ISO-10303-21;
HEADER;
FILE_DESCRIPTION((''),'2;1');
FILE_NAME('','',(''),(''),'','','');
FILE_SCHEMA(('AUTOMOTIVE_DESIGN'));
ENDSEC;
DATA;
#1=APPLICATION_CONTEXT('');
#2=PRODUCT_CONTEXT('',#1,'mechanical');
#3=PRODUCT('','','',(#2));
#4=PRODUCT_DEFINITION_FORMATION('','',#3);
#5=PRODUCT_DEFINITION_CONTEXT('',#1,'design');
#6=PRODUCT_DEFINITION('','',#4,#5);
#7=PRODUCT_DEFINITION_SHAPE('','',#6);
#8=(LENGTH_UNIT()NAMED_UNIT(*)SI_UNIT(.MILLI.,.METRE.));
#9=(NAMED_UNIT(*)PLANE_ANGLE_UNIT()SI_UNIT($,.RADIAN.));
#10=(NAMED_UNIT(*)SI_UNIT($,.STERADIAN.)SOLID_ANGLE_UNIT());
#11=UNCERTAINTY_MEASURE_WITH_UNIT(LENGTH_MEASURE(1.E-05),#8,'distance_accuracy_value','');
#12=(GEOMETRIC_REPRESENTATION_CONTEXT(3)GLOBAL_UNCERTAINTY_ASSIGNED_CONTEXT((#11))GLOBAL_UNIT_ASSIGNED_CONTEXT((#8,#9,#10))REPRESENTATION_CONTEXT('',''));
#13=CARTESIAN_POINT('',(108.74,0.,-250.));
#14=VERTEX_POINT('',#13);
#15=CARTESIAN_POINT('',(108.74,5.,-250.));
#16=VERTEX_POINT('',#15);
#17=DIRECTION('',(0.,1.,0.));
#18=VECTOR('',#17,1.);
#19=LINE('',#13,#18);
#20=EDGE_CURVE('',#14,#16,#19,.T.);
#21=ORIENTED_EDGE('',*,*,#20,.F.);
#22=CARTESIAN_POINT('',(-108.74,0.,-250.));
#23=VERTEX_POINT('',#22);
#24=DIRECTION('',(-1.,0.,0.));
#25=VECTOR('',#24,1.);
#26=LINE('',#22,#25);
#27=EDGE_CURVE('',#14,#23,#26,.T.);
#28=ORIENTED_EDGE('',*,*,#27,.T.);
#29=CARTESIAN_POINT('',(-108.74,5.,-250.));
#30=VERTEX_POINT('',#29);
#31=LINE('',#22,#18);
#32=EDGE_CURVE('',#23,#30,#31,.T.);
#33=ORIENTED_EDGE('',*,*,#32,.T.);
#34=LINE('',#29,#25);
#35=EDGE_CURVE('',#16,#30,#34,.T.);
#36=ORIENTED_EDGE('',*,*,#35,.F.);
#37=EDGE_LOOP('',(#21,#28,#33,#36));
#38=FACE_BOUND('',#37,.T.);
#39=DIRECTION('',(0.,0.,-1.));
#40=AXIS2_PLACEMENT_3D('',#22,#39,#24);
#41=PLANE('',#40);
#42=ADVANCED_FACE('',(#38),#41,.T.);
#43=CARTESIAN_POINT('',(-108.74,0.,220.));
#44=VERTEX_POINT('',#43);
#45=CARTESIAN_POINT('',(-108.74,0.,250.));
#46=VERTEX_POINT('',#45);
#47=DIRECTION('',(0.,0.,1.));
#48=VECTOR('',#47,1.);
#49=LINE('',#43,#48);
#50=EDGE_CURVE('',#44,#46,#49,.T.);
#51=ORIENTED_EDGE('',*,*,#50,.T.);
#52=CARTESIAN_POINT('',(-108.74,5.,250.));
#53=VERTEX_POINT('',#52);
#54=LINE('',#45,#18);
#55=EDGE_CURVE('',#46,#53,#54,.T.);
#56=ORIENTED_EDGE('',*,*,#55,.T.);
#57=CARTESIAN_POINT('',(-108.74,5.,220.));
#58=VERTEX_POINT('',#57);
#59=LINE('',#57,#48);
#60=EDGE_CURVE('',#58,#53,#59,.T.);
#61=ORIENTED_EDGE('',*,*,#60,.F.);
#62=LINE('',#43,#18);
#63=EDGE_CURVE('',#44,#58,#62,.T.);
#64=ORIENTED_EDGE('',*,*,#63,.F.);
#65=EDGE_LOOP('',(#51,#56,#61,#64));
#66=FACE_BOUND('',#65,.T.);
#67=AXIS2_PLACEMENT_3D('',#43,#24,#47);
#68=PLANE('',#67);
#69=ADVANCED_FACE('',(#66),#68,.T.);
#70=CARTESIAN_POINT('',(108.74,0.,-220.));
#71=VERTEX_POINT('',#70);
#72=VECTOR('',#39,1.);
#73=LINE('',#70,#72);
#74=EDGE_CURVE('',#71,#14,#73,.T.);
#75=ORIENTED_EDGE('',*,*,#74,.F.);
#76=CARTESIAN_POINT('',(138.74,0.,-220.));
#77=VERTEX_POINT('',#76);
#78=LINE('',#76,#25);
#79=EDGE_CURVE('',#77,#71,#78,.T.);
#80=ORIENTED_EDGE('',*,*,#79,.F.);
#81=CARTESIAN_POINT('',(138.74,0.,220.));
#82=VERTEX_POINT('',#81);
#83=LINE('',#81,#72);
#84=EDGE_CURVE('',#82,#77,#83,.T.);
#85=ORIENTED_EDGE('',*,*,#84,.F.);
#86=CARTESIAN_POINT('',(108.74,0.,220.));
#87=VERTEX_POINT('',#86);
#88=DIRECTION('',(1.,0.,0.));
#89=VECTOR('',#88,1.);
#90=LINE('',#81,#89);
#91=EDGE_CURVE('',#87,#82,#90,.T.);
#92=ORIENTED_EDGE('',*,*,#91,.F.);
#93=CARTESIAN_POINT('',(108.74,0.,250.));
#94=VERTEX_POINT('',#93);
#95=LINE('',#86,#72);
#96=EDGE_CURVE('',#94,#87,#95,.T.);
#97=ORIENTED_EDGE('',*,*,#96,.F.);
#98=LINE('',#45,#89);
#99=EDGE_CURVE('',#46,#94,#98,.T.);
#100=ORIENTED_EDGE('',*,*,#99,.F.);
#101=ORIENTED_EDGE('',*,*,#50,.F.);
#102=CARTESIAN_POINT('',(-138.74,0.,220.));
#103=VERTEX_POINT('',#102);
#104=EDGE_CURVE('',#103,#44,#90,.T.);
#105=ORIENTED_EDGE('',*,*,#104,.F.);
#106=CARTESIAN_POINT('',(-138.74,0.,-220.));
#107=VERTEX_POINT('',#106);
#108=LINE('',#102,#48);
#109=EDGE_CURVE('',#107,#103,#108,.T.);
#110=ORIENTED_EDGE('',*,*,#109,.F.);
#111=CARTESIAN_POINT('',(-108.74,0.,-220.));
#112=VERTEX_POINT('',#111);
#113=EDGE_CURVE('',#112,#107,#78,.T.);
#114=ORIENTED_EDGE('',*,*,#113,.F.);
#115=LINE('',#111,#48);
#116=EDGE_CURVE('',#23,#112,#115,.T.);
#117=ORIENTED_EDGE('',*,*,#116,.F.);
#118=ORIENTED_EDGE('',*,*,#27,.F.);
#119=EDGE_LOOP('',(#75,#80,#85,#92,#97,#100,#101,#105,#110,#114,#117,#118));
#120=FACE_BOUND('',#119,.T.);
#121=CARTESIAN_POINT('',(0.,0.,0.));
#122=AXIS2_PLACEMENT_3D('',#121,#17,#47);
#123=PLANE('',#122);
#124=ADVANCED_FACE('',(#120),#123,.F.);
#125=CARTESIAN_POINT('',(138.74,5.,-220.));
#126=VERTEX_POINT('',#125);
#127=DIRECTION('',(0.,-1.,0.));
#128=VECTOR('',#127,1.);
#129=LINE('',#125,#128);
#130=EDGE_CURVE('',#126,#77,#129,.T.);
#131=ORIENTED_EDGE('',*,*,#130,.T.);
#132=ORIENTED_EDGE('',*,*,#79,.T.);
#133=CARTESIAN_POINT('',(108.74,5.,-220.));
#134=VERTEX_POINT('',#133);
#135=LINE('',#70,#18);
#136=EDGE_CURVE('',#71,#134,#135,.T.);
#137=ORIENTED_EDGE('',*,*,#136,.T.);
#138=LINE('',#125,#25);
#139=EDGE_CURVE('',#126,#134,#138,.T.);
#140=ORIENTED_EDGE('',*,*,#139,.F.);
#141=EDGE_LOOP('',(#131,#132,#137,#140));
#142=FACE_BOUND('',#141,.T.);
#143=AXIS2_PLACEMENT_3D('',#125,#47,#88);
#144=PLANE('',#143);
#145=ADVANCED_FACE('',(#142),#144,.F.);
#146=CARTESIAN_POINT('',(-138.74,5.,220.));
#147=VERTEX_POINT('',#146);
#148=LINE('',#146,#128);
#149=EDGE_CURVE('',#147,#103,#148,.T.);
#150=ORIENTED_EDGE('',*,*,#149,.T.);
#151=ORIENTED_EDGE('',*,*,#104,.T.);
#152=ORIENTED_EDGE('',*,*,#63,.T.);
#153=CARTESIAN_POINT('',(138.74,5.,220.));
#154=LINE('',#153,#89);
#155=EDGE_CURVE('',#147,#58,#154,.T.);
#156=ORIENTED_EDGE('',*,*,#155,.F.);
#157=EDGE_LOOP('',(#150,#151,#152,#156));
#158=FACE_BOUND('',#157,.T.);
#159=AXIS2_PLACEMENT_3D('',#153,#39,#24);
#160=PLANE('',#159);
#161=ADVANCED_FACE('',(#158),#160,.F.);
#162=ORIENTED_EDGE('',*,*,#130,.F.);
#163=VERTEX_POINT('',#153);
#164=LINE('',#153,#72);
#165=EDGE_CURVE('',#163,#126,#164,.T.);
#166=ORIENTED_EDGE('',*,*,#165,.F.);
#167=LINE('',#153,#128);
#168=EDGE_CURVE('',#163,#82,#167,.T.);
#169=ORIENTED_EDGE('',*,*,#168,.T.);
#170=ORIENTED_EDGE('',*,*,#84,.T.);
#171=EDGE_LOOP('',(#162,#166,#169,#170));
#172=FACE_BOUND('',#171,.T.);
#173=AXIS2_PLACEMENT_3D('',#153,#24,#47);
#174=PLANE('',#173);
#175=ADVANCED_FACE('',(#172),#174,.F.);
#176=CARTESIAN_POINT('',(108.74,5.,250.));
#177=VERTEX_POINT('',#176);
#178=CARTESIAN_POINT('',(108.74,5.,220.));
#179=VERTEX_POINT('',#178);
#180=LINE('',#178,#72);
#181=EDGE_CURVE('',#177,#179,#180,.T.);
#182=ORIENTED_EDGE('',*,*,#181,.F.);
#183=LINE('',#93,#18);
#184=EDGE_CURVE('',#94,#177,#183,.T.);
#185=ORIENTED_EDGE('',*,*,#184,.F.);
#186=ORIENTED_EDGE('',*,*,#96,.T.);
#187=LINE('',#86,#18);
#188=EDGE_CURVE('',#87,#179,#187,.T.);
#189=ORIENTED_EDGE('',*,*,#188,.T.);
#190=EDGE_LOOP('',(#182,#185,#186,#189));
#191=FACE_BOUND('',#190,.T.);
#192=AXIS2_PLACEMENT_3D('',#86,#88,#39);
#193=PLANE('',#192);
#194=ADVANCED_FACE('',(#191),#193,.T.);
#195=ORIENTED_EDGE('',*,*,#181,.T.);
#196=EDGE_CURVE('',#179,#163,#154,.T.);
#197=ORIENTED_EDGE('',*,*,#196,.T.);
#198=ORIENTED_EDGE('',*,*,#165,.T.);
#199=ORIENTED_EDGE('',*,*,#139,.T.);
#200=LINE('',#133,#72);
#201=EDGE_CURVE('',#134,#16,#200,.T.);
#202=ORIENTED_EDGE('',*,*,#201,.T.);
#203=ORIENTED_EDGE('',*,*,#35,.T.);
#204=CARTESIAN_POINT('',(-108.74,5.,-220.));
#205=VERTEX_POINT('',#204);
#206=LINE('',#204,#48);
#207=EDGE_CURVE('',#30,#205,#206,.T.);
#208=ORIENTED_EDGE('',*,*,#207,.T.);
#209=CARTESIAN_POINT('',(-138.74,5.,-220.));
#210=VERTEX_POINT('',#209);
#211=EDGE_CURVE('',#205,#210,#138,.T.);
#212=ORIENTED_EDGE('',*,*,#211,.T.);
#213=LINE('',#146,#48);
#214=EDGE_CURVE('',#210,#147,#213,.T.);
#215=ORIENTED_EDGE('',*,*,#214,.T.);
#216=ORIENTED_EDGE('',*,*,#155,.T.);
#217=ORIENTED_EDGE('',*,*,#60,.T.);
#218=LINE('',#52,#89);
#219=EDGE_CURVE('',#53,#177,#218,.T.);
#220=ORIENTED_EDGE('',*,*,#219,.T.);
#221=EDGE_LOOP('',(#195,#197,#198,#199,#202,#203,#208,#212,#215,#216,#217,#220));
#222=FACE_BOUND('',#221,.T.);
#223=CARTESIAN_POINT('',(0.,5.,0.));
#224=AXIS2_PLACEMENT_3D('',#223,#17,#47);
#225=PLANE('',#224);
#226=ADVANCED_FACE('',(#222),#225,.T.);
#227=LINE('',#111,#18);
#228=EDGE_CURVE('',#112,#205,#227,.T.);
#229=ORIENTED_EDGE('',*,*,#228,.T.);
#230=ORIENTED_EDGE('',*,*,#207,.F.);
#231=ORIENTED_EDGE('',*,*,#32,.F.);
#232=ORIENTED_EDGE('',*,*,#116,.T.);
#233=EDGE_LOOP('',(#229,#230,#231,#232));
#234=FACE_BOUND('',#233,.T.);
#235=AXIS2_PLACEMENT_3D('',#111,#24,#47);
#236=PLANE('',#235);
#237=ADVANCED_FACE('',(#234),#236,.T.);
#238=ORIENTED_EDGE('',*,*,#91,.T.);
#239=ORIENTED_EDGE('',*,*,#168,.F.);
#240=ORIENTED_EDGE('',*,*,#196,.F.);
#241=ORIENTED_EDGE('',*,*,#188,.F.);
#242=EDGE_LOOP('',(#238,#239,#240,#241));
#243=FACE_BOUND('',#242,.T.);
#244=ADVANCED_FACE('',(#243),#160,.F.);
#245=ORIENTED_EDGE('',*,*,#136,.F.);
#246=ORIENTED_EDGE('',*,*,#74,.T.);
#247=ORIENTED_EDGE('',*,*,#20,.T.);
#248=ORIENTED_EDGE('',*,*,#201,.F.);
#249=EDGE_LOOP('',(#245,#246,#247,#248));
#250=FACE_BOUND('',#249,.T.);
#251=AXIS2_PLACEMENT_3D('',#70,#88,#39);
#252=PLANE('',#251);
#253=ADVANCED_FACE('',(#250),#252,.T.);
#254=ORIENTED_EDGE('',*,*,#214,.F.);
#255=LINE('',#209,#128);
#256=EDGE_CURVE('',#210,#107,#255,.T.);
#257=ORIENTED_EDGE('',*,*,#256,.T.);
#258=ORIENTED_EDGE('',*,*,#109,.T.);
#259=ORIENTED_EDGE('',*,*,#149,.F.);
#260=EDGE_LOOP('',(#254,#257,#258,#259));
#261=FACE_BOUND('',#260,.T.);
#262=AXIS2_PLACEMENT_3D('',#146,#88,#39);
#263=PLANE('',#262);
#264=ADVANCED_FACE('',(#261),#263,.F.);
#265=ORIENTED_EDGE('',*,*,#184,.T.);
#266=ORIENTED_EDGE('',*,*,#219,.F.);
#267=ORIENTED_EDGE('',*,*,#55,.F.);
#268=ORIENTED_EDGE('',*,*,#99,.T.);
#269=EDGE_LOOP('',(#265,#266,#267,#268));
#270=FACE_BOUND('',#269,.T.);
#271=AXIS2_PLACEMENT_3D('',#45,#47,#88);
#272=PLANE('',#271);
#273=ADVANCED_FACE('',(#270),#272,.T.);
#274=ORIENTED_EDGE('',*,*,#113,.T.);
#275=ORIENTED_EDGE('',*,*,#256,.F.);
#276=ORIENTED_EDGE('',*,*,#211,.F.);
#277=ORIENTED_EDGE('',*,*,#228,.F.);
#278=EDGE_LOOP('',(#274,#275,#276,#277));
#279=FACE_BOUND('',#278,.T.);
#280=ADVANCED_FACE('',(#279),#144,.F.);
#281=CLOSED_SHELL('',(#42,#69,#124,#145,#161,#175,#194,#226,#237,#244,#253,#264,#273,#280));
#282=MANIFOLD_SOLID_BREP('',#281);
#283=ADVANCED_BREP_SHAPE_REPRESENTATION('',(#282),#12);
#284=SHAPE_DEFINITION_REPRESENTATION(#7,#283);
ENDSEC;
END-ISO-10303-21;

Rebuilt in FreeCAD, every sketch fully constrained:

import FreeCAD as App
import Part
import Sketcher

V = App.Vector


def add_polygon(sketch, points):
    """Adds a closed chain of lines whose ends are joined by coincident constraints."""
    first, n = sketch.GeometryCount, len(points)
    for a, b in zip(points, points[1:] + points[:1]):
        sketch.addGeometry(Part.LineSegment(App.Vector(*a, 0), App.Vector(*b, 0)), False)
    for i in range(n):
        sketch.addConstraint(Sketcher.Constraint("Coincident", first + i, 2, first + (i + 1) % n, 1))

doc = App.newDocument("Part")
body = doc.addObject("PartDesign::Body", "Body")

sketch1 = doc.addObject("Sketcher::SketchObject", "Sketch")
body.addObject(sketch1)
sketch1.AttachmentSupport = (doc.XZ_Plane, [""])
sketch1.MapMode = "FlatFace"
add_polygon(sketch1, [(-139, -220), (-139, 220), (139, 220), (139, -220)])
sketch1.addConstraint(Sketcher.Constraint("Vertical", 0))
sketch1.addConstraint(Sketcher.Constraint("Horizontal", 1))
sketch1.addConstraint(Sketcher.Constraint("Vertical", 2))
sketch1.addConstraint(Sketcher.Constraint("Horizontal", 3))
sketch1.addConstraint(Sketcher.Constraint("Symmetric", 0, 2, 2, 2, -1, 1))
sketch1.addConstraint(Sketcher.Constraint("DistanceY", 0, 1, 0, 2, 440.0))
sketch1.addConstraint(Sketcher.Constraint("DistanceX", 1, 1, 1, 2, 277.48))
pad1 = doc.addObject("PartDesign::Pad", "Pad")
body.addObject(pad1)
pad1.Profile = sketch1
pad1.Length = 5
pad1.Reversed = True

sketch2 = doc.addObject("Sketcher::SketchObject", "Sketch001")
body.addObject(sketch2)
sketch2.AttachmentSupport = (doc.XZ_Plane, [""])
sketch2.MapMode = "FlatFace"
sketch2.AttachmentOffset = App.Placement(V(0, 0, -5), App.Rotation())
add_polygon(sketch2, [(-109, -250), (-109, -220), (109, -220), (109, -250)])
add_polygon(sketch2, [(-109, 220), (-109, 250), (109, 250), (109, 220)])
sketch2.addConstraint(Sketcher.Constraint("Vertical", 0))
sketch2.addConstraint(Sketcher.Constraint("Horizontal", 1))
sketch2.addConstraint(Sketcher.Constraint("Vertical", 2))
sketch2.addConstraint(Sketcher.Constraint("Horizontal", 3))
sketch2.addConstraint(Sketcher.Constraint("Vertical", 4))
sketch2.addConstraint(Sketcher.Constraint("Horizontal", 5))
sketch2.addConstraint(Sketcher.Constraint("Vertical", 6))
sketch2.addConstraint(Sketcher.Constraint("Horizontal", 7))
sketch2.addConstraint(Sketcher.Constraint("Symmetric", 2, 2, 4, 2, -1, 1))
sketch2.addConstraint(Sketcher.Constraint("Symmetric", 0, 2, 6, 2, -1, 1))
sketch2.addConstraint(Sketcher.Constraint("Vertical", 3, 2, 4, 2))
sketch2.addConstraint(Sketcher.Constraint("DistanceY", 0, 1, 0, 2, 30.0))
sketch2.addConstraint(Sketcher.Constraint("DistanceY", 0, 2, -1, 1, 220.0))
sketch2.addConstraint(Sketcher.Constraint("DistanceX", 1, 1, 1, 2, 217.48))
pad2 = doc.addObject("PartDesign::Pad", "Pad001")
body.addObject(pad2)
pad2.Profile = sketch2
pad2.Length = 5

doc.recompute()
